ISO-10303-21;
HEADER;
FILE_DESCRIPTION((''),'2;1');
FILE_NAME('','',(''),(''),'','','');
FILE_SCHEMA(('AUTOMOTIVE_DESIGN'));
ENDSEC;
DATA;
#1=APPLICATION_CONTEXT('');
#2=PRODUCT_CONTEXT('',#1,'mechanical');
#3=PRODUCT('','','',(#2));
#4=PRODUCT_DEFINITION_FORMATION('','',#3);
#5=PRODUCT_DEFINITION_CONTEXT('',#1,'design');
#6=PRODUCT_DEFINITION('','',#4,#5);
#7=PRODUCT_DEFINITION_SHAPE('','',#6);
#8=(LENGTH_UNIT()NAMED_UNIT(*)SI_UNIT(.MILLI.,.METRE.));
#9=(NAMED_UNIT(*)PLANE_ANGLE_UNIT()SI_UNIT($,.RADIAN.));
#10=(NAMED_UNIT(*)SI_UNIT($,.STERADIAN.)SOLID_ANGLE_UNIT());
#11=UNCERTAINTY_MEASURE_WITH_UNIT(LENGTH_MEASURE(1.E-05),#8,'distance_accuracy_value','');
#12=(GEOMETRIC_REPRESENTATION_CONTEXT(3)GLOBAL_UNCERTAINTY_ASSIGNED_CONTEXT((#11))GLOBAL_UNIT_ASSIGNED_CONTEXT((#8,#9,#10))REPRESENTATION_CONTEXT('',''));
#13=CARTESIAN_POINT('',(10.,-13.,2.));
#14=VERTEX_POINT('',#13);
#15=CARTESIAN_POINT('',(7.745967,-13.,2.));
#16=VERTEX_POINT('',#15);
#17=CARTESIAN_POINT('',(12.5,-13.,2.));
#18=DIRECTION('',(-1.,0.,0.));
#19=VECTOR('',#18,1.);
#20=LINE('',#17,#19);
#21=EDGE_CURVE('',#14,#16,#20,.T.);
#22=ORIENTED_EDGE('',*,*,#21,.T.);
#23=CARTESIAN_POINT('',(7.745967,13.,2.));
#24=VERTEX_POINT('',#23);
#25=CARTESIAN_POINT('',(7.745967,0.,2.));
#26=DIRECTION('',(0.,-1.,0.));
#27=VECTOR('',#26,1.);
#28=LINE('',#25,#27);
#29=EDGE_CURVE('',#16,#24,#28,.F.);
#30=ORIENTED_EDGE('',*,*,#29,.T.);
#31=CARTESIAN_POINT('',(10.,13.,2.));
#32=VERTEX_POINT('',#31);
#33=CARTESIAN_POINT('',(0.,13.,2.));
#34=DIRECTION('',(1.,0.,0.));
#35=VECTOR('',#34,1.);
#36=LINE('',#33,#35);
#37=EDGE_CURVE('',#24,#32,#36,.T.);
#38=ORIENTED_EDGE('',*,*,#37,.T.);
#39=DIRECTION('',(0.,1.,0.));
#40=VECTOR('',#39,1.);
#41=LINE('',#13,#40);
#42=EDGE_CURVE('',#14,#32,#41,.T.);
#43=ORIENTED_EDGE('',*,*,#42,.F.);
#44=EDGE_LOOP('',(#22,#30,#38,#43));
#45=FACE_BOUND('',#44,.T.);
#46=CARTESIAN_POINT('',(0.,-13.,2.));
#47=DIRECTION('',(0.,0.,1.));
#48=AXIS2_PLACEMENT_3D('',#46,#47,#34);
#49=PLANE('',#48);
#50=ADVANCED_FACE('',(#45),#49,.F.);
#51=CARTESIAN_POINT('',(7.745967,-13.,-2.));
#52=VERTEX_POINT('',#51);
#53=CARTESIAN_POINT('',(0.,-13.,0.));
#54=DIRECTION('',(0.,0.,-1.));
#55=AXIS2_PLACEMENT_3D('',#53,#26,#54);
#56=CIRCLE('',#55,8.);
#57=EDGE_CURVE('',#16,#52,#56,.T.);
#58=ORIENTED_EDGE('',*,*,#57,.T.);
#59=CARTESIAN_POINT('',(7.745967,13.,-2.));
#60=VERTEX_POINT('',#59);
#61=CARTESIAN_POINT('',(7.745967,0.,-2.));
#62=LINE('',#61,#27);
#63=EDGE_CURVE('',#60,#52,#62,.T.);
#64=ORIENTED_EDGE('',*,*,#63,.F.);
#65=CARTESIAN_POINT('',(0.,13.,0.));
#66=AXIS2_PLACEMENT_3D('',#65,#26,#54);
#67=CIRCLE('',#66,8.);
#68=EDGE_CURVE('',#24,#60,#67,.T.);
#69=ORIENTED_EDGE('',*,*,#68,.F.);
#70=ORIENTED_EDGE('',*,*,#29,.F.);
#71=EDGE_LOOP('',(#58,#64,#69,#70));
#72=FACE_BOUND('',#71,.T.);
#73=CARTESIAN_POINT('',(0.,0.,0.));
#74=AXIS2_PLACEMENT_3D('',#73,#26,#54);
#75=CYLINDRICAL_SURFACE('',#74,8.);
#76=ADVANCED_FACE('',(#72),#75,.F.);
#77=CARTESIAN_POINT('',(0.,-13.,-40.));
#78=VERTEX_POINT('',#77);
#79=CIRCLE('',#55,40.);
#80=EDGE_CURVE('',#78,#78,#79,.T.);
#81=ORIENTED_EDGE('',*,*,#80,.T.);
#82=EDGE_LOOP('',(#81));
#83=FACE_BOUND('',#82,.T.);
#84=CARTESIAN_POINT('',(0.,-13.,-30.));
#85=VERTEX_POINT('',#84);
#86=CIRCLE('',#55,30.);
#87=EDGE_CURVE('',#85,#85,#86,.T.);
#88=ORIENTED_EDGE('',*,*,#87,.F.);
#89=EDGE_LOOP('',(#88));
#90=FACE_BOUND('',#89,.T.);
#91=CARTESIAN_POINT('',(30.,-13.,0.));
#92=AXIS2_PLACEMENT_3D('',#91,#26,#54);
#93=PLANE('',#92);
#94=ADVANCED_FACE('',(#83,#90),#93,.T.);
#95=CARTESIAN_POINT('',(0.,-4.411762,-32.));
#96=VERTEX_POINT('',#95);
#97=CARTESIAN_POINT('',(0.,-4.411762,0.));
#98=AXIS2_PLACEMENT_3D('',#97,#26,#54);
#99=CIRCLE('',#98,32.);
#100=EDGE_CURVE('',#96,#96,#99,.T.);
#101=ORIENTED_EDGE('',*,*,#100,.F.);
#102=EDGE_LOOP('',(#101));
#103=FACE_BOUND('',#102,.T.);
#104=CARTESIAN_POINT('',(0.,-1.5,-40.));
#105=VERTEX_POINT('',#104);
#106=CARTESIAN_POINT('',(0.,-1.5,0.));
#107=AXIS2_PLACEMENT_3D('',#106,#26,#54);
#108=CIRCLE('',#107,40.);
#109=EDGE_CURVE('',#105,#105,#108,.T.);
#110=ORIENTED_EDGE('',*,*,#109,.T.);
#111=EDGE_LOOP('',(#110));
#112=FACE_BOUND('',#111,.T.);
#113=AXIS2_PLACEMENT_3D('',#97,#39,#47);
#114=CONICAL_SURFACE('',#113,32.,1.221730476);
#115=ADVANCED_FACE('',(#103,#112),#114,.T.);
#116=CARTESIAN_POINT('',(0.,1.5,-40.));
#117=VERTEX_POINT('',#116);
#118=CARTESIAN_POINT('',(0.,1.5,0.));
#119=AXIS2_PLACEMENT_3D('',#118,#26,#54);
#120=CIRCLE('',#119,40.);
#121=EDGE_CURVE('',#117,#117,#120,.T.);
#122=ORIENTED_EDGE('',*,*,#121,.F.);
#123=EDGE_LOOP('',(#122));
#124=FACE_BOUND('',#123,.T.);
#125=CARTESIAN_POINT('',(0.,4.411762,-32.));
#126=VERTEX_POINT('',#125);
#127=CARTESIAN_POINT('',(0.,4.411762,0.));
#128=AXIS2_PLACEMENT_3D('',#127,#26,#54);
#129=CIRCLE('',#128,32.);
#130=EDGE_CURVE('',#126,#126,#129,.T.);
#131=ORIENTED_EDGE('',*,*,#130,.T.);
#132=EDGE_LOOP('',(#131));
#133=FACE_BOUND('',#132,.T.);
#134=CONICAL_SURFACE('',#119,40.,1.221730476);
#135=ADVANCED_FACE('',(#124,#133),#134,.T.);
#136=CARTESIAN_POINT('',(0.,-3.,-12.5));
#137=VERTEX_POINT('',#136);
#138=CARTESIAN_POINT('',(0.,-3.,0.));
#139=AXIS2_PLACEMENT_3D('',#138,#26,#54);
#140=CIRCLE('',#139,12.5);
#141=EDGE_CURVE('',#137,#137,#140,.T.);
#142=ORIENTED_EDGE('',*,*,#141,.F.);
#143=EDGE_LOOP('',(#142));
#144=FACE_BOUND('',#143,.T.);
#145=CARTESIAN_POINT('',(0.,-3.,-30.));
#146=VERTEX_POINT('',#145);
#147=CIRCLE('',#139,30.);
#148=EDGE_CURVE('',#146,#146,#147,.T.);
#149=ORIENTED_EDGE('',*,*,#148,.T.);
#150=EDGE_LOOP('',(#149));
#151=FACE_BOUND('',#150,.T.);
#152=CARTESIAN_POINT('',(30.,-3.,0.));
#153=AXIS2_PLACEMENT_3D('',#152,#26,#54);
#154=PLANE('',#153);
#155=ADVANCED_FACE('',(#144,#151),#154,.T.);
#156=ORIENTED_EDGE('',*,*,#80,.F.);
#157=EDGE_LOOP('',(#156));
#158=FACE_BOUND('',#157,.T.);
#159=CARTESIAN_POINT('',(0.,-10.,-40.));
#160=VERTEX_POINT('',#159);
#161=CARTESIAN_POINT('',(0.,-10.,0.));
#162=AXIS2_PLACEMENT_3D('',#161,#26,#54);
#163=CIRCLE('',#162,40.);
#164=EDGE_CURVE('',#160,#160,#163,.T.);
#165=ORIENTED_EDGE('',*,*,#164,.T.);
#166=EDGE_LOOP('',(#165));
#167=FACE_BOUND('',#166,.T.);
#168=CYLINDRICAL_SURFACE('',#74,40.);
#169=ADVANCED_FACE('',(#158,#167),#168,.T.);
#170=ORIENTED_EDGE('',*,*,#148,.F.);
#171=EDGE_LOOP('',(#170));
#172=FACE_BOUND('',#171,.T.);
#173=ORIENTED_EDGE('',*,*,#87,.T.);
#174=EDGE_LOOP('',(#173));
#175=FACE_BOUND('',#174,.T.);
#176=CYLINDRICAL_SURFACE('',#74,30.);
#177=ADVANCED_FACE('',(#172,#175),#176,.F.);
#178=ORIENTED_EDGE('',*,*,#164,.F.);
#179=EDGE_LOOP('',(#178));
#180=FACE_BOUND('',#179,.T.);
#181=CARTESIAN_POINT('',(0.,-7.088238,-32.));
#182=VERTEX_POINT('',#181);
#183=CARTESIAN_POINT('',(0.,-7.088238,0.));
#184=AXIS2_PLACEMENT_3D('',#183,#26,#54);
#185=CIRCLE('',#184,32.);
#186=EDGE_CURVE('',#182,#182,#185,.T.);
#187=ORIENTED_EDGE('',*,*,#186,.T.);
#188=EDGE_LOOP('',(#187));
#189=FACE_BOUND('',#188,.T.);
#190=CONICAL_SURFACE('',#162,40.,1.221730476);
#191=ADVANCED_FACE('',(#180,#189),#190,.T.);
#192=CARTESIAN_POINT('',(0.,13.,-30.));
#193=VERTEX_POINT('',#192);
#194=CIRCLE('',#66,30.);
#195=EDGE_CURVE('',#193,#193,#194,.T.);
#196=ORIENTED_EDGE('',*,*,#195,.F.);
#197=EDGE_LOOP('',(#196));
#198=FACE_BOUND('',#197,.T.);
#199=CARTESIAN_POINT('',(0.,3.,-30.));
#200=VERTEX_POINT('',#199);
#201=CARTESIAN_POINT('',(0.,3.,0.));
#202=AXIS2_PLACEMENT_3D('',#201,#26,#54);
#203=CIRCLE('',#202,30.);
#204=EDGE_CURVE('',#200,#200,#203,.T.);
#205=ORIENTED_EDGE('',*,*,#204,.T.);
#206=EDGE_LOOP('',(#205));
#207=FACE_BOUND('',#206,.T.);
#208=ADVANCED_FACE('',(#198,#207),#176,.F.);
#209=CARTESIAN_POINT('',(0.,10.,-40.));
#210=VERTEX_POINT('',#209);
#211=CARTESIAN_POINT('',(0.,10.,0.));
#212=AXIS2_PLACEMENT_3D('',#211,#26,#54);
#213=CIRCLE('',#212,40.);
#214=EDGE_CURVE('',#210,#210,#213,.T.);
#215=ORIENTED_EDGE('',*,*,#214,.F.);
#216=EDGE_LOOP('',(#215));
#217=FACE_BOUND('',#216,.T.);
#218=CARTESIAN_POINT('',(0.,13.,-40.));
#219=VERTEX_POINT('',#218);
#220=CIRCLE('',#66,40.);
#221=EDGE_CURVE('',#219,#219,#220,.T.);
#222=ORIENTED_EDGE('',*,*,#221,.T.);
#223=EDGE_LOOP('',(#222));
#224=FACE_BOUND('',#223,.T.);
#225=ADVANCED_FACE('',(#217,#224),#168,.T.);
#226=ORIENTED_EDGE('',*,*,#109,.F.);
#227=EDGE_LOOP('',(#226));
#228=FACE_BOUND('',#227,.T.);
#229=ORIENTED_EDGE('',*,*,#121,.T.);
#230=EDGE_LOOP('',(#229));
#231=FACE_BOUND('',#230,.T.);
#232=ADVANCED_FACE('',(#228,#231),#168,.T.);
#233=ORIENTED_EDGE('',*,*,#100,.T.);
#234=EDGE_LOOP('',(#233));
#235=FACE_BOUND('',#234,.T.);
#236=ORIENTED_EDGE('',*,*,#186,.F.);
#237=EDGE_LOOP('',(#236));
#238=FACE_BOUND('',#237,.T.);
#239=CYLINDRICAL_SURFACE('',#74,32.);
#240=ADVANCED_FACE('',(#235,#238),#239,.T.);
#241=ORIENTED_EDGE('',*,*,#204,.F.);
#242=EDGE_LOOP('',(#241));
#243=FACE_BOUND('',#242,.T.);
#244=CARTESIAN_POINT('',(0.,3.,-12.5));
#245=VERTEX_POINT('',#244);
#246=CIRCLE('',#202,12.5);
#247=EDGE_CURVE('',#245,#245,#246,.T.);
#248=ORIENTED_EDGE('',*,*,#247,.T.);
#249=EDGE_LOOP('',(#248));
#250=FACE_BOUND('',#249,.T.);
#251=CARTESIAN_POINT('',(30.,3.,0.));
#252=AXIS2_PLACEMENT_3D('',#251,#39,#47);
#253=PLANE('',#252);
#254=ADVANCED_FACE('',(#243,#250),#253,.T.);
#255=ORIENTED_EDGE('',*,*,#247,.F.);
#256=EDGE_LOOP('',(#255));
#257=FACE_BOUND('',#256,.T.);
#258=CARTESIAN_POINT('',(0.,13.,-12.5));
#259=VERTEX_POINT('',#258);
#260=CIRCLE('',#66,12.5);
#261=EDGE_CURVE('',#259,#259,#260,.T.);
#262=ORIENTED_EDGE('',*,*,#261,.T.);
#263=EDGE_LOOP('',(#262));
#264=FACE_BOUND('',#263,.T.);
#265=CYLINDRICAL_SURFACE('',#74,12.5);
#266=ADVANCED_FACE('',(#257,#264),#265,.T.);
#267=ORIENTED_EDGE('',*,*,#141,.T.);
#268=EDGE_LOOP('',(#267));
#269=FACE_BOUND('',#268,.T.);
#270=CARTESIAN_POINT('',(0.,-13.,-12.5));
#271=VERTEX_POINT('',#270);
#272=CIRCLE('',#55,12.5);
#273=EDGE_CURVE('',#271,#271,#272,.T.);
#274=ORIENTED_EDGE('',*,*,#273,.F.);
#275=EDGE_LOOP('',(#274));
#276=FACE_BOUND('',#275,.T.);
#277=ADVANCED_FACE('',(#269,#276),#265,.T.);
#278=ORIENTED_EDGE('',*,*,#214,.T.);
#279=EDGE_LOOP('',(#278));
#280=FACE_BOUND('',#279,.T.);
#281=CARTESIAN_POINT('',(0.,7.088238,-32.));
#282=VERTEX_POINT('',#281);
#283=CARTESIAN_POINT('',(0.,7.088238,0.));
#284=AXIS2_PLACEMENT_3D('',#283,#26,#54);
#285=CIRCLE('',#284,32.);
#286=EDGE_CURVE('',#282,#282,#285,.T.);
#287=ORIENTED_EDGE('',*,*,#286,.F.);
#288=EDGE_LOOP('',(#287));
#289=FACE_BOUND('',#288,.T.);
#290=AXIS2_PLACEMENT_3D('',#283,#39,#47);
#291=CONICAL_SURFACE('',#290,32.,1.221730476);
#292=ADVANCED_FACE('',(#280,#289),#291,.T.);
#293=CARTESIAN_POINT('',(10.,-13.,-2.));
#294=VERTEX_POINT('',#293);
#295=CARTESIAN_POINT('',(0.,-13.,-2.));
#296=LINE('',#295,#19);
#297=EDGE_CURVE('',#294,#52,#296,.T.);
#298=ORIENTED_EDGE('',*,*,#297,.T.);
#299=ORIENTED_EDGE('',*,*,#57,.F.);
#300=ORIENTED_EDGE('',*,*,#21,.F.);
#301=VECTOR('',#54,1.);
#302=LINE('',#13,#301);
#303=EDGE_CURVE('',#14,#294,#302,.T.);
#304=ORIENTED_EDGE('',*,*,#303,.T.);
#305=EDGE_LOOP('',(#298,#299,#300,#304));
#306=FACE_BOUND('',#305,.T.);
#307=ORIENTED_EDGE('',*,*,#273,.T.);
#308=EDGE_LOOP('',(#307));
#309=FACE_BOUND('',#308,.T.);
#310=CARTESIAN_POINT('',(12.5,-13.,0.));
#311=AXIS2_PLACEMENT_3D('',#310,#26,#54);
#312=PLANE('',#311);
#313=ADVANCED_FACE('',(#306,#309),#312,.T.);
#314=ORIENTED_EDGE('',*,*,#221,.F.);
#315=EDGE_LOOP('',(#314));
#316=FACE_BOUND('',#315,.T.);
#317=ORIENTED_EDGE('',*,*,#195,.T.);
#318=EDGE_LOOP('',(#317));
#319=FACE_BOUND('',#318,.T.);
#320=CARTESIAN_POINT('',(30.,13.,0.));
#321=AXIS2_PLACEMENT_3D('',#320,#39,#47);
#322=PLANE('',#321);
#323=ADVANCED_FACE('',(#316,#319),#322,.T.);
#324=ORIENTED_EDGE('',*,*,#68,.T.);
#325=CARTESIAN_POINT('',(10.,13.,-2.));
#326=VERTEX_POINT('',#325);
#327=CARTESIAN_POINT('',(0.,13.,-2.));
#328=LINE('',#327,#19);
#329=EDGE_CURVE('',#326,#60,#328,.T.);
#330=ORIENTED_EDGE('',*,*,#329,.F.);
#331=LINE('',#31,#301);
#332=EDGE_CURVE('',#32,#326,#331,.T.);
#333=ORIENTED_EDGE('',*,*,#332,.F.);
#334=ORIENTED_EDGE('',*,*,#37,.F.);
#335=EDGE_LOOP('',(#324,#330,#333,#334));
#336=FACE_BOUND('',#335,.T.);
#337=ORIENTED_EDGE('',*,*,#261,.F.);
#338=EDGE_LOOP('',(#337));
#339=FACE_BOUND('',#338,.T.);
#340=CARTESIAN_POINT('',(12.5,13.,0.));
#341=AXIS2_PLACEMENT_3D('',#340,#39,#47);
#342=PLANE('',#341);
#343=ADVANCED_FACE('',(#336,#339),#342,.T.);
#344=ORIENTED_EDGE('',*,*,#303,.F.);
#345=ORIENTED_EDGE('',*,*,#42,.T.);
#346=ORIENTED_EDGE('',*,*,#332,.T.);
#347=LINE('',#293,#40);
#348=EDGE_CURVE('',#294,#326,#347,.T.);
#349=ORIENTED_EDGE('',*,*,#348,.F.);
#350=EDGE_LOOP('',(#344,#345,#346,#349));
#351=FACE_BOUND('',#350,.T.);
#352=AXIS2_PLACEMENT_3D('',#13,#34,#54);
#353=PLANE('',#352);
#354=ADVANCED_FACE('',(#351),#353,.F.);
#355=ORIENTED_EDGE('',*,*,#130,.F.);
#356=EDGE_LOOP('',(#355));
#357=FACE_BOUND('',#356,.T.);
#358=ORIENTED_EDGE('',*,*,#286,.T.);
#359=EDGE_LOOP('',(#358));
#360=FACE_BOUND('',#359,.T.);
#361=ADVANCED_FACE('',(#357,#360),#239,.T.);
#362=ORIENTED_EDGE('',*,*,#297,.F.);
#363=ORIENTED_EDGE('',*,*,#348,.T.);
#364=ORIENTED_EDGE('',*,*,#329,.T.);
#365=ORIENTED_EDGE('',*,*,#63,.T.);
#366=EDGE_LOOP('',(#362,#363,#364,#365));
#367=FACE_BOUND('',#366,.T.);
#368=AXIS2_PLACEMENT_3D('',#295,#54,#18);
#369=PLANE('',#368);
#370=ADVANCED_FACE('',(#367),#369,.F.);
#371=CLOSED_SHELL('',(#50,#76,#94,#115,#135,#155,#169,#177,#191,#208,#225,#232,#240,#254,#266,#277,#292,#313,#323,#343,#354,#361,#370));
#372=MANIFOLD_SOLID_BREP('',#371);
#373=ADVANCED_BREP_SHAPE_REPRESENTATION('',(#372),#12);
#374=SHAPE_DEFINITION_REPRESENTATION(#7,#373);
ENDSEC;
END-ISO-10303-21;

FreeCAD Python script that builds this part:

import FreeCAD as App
import Part
import Sketcher
from FreeCAD import Vector
Q = App.Units.Quantity


def add_polygon(sketch, points):
    """Adds a closed chain of lines whose ends are joined by coincident constraints."""
    first, n = sketch.GeometryCount, len(points)
    for a, b in zip(points, points[1:] + points[:1]):
        sketch.addGeometry(Part.LineSegment(App.Vector(*a, 0), App.Vector(*b, 0)), False)
    for i in range(n):
        sketch.addConstraint(Sketcher.Constraint("Coincident", first + i, 2, first + (i + 1) % n, 1))

doc = App.newDocument("Part")
body = doc.addObject("PartDesign::Body", "Body")

sketch1 = doc.addObject("Sketcher::SketchObject", "Sketch")
body.addObject(sketch1)
sketch1.AttachmentSupport = (doc.XY_Plane, [""])
sketch1.MapMode = "FlatFace"
add_polygon(sketch1, [(30, -3), (30, -13), (40, -13), (40, -10), (32, -7.1), (32, -4.4), (40, -1.5), (40, 1.5), (32, 4.4), (32, 7.1), (40, 10), (40, 13), (30, 13), (30, 3), (12.5, 3), (12.5, 13), (8, 13), (8, -13), (12.5, -13), (12.5, -3)])
sketch1.addConstraint([
    Sketcher.Constraint("Vertical", 0),
    Sketcher.Constraint("Horizontal", 1),
    Sketcher.Constraint("Vertical", 2),
    Sketcher.Constraint("Vertical", 4),
    Sketcher.Constraint("Vertical", 6),
    Sketcher.Constraint("Vertical", 8),
    Sketcher.Constraint("Vertical", 10),
    Sketcher.Constraint("Horizontal", 11),
    Sketcher.Constraint("Vertical", 12),
    Sketcher.Constraint("Horizontal", 13),
    Sketcher.Constraint("Vertical", 14),
    Sketcher.Constraint("Horizontal", 15),
    Sketcher.Constraint("Vertical", 16),
    Sketcher.Constraint("Horizontal", 17),
    Sketcher.Constraint("Vertical", 18),
    Sketcher.Constraint("Horizontal", 19),
    Sketcher.Constraint("Symmetric", 4, 2, 7, 2, -1),
    Sketcher.Constraint("Symmetric", 2, 2, 9, 2, -1),
    Sketcher.Constraint("Symmetric", 0, 2, 11, 2, -1),
    Sketcher.Constraint("Symmetric", 14, 2, 17, 2, -1),
    Sketcher.Constraint("Parallel", 3, 7),
    Sketcher.Constraint("Parallel", 5, 9),
    Sketcher.Constraint("Horizontal", 11, 2, 14, 2),
    Sketcher.Constraint("Vertical", 2, 2, 5, 2),
    Sketcher.Constraint("Equal", 11, 0),
    Sketcher.Constraint("Equal", 2, 6),
    Sketcher.Constraint("Equal", 4, 8),
    Sketcher.Constraint("Equal", 0, 12),
    Sketcher.Constraint("DistanceX", 1, 1, 1, 2, Q("10 mm")),
    Sketcher.Constraint("DistanceY", 2, 1, 2, 2, Q("3 mm")),
    Sketcher.Constraint("DistanceY", 16, 2, 16, 1, Q("26 mm")),
    Sketcher.Constraint("Angle", 3, Q("160 deg")),
    Sketcher.Constraint("DistanceX", 13, 2, 13, 1, Q("17.5 mm")),
    Sketcher.Constraint("DistanceX", 15, 2, 15, 1, Q("4.5 mm")),
    Sketcher.Constraint("DistanceX", -1, 1, 0, 2, Q("30 mm")),
    Sketcher.Constraint("DistanceX", -1, 1, 3, 2, Q("32 mm")),
])
revolution = doc.addObject("PartDesign::Revolution", "Revolution")
body.addObject(revolution)
revolution.Profile = sketch1
revolution.ReferenceAxis = (sketch1, ["V_Axis"])
revolution.Angle = 360

sketch2 = doc.addObject("Sketcher::SketchObject", "Sketch001")
body.addObject(sketch2)
sketch2.AttachmentSupport = (doc.XZ_Plane, [""])
sketch2.MapMode = "FlatFace"
sketch2.AttachmentOffset = App.Placement(Vector(0, 0, -13), App.Rotation())
add_polygon(sketch2, [(0, -2), (0, 2), (10, 2), (10, -2)])
sketch2.addConstraint([
    Sketcher.Constraint("Vertical", 0),
    Sketcher.Constraint("Horizontal", 1),
    Sketcher.Constraint("Vertical", 2),
    Sketcher.Constraint("Horizontal", 3),
    Sketcher.Constraint("Symmetric", 0, 2, 3, 2, -1, 1),
    Sketcher.Constraint("DistanceX", 1, 1, 1, 2, Q("10 mm")),
    Sketcher.Constraint("DistanceY", 0, 1, 0, 2, Q("4 mm")),
])
pocket1 = doc.addObject("PartDesign::Pocket", "Pocket")
body.addObject(pocket1)
pocket1.Profile = sketch2
pocket1.Type = "ThroughAll"
pocket1.Reversed = True

doc.recompute()
